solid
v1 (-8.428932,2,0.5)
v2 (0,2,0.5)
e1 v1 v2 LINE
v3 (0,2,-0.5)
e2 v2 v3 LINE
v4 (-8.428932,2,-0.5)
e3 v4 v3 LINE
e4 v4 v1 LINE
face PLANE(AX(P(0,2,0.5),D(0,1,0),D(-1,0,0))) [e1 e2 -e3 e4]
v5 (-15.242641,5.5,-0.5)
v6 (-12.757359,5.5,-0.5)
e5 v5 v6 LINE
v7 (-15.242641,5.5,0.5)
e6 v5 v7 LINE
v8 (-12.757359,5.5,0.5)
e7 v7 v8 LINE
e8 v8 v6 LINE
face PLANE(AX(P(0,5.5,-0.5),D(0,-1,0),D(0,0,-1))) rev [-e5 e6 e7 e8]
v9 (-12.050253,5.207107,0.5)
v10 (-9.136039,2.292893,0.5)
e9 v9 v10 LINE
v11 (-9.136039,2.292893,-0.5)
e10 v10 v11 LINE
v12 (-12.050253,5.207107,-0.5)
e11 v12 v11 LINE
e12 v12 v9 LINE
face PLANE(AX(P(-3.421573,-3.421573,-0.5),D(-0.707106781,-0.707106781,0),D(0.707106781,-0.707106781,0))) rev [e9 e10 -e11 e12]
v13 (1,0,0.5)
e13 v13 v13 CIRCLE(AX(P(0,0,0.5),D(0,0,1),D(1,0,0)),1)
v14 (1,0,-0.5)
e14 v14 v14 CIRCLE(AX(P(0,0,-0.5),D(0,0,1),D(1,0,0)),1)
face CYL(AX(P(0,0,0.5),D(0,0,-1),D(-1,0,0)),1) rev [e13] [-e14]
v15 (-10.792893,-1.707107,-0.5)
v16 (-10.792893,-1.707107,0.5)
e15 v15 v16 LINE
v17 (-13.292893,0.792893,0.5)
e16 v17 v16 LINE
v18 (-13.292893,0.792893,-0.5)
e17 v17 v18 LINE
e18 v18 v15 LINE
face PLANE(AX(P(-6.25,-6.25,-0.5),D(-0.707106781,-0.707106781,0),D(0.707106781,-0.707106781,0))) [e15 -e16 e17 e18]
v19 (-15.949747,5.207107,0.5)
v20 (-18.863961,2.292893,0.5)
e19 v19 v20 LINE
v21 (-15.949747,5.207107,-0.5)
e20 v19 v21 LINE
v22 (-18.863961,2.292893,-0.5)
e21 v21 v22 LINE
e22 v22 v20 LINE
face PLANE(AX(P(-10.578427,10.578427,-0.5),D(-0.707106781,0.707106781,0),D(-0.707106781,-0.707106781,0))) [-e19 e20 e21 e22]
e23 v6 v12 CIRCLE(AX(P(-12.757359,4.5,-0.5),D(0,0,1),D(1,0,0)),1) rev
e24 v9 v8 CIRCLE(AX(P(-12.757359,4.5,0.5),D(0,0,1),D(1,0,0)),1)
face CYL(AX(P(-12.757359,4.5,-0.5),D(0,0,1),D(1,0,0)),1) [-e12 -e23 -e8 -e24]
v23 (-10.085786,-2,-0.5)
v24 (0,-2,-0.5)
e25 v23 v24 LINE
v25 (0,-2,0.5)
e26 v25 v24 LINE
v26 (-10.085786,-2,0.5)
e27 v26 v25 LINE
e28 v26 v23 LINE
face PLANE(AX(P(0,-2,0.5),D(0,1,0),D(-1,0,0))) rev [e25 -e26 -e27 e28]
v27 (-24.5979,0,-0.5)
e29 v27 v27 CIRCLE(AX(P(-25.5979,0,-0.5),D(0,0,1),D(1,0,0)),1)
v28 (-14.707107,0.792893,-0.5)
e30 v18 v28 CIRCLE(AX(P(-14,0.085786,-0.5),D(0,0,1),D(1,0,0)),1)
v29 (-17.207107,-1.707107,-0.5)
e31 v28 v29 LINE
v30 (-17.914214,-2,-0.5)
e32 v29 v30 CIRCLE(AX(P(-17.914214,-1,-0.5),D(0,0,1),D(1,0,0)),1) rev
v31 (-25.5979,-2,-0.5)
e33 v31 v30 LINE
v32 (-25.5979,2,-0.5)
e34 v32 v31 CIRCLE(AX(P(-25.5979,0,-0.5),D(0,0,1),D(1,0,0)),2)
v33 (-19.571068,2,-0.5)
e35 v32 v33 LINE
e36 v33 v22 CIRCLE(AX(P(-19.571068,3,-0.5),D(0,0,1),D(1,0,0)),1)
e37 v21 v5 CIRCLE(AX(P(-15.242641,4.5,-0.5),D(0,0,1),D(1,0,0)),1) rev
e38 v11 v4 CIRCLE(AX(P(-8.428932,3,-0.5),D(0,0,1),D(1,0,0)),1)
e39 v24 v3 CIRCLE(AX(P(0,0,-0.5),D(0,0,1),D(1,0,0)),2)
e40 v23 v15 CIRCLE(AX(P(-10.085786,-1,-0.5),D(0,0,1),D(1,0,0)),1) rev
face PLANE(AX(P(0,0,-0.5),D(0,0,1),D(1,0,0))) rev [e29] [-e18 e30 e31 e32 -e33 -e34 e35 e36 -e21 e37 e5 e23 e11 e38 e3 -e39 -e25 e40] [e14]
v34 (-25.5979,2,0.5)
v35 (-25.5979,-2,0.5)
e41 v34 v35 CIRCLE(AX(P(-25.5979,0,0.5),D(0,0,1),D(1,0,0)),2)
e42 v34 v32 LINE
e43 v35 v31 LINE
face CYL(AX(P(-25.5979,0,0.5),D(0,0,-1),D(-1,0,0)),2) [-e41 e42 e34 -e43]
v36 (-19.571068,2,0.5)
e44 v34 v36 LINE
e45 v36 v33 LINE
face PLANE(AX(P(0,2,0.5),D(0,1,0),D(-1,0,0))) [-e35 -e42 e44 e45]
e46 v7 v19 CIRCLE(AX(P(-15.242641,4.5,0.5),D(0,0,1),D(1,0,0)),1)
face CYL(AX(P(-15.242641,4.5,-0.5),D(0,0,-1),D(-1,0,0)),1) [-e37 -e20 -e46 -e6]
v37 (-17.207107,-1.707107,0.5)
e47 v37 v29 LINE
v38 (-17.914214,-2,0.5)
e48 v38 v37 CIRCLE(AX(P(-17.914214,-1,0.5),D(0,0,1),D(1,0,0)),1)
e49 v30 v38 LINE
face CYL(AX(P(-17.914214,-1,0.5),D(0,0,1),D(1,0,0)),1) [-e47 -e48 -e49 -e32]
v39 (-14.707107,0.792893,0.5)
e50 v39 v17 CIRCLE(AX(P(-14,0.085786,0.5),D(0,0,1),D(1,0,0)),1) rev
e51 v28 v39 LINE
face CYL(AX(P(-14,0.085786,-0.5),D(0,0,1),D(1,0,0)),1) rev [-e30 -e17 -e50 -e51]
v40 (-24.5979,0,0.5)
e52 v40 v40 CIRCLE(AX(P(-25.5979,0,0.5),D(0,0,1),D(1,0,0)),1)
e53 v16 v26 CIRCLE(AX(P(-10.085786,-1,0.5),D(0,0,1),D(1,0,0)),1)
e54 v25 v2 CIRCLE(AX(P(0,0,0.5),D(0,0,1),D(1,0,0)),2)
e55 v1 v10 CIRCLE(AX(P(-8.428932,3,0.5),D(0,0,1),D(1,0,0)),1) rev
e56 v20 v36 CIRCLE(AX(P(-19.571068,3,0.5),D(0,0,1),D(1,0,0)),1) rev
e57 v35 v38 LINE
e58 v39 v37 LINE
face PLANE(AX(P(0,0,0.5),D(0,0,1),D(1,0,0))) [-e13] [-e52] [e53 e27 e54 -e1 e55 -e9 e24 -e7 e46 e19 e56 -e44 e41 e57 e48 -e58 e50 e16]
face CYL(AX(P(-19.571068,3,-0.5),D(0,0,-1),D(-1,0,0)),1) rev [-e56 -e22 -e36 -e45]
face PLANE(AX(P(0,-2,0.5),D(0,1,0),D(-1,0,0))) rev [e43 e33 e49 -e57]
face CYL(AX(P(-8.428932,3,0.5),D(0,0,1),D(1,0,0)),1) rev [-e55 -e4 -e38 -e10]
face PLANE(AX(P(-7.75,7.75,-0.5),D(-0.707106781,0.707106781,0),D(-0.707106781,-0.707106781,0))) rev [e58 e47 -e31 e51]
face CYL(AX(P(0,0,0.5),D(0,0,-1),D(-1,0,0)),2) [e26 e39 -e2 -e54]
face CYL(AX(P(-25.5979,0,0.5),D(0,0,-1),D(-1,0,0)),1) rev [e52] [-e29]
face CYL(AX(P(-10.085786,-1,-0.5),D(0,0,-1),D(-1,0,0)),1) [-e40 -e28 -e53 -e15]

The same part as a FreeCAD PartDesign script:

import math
import FreeCAD as App
import Part
import Sketcher


def edges_at(feature, points):
    """Names of the edges that pass closest to the given points."""
    edges = feature.Shape.Edges
    near = lambda p: min(range(len(edges)), key=lambda i: edges[i].distToShape(Part.Vertex(*p))[0])
    return sorted({f"Edge{near(p) + 1}" for p in points})


def add_polygon(sketch, points):
    """Adds a closed chain of lines whose ends are joined by coincident constraints."""
    first, n = sketch.GeometryCount, len(points)
    for a, b in zip(points, points[1:] + points[:1]):
        sketch.addGeometry(Part.LineSegment(App.Vector(*a, 0), App.Vector(*b, 0)), False)
    for i in range(n):
        sketch.addConstraint(Sketcher.Constraint("Coincident", first + i, 2, first + (i + 1) % n, 1))

doc = App.newDocument("Part")
body = doc.addObject("PartDesign::Body", "Body")

sketch1 = doc.addObject("Sketcher::SketchObject", "Sketch")
body.addObject(sketch1)
sketch1.AttachmentSupport = (doc.XY_Plane, [""])
sketch1.MapMode = "FlatFace"
sketch1.addGeometry(Part.LineSegment(App.Vector(0, 2, 0), App.Vector(-25.6, 2, 0)), False)
sketch1.addGeometry(Part.ArcOfCircle(Part.Circle(App.Vector(-25.6, 0, 0), App.Vector(0, 0, 1), 2), math.radians(90), math.radians(270)), False)
sketch1.addGeometry(Part.LineSegment(App.Vector(-25.6, -2, 0), App.Vector(0, -2, 0)), False)
sketch1.addGeometry(Part.ArcOfCircle(Part.Circle(App.Vector(0, 0, 0), App.Vector(0, 0, 1), 2), math.radians(-90), math.radians(90)), False)
sketch1.addGeometry(Part.Circle(App.Vector(-25.6, 0, 0), App.Vector(0, 0, 1), 1), False)
sketch1.addGeometry(Part.Circle(App.Vector(0, 0, 0), App.Vector(0, 0, 1), 1), False)
sketch1.addConstraint(Sketcher.Constraint("Tangent", 0, 2, 1, 1))
sketch1.addConstraint(Sketcher.Constraint("Tangent", 1, 2, 2, 1))
sketch1.addConstraint(Sketcher.Constraint("Tangent", 2, 2, 3, 1))
sketch1.addConstraint(Sketcher.Constraint("Tangent", 3, 2, 0, 1))
sketch1.addConstraint(Sketcher.Constraint("Horizontal", 0))
sketch1.addConstraint(Sketcher.Constraint("Horizontal", 2))
sketch1.addConstraint(Sketcher.Constraint("Coincident", 3, 3, -1, 1))
sketch1.addConstraint(Sketcher.Constraint("Coincident", 5, 3, -1, 1))
sketch1.addConstraint(Sketcher.Constraint("Coincident", 4, 3, 1, 3))
sketch1.addConstraint(Sketcher.Constraint("Equal", 4, 5))
sketch1.addConstraint(Sketcher.Constraint("Diameter", 4, 2.0))
sketch1.addConstraint(Sketcher.Constraint("Radius", 1, 2.0))
sketch1.addConstraint(Sketcher.Constraint("DistanceX", 0, 2, 0, 1, 25.5979))
pad1 = doc.addObject("PartDesign::Pad", "Pad")
body.addObject(pad1)
pad1.Profile = sketch1
pad1.Length = 1
pad1.Midplane = True

sketch2 = doc.addObject("Sketcher::SketchObject", "Sketch001")
body.addObject(sketch2)
sketch2.AttachmentSupport = (doc.XY_Plane, [""])
sketch2.MapMode = "FlatFace"
add_polygon(sketch2, [(-8.8, 2), (-12.3, 5.5), (-15.7, 5.5), (-19.2, 2)])
sketch2.addConstraint(Sketcher.Constraint("Horizontal", 1))
sketch2.addConstraint(Sketcher.Constraint("Horizontal", 3))
sketch2.addConstraint(Sketcher.Constraint("Perpendicular", 0, 2))
sketch2.addConstraint(Sketcher.Constraint("Equal", 0, 2))
sketch2.addConstraint(Sketcher.Constraint("DistanceY", -1, 1, 2, 2, 2.0))
sketch2.addConstraint(Sketcher.Constraint("DistanceY", -1, 1, 0, 2, 5.5))
sketch2.addConstraint(Sketcher.Constraint("DistanceX", 1, 2, 1, 1, 3.313708))
sketch2.addConstraint(Sketcher.Constraint("DistanceX", 0, 2, -1, 1, 12.343146))
pad2 = doc.addObject("PartDesign::Pad", "Pad001")
body.addObject(pad2)
pad2.Profile = sketch2
pad2.Length = 1
pad2.Midplane = True

sketch3 = doc.addObject("Sketcher::SketchObject", "Sketch002")
body.addObject(sketch3)
sketch3.AttachmentSupport = (doc.XY_Plane, [""])
sketch3.MapMode = "FlatFace"
add_polygon(sketch3, [(-10.5, -2), (-14, 1.5), (-17.5, -2)])
sketch3.addConstraint(Sketcher.Constraint("Horizontal", 2))
sketch3.addConstraint(Sketcher.Constraint("Perpendicular", 0, 1))
sketch3.addConstraint(Sketcher.Constraint("Equal", 0, 1))
sketch3.addConstraint(Sketcher.Constraint("DistanceX", 2, 1, 2, 2, 7.0))
sketch3.addConstraint(Sketcher.Constraint("DistanceX", 0, 2, -1, 1, 14.0))
sketch3.addConstraint(Sketcher.Constraint("DistanceY", 1, 2, -1, 1, 2.0))
pocket1 = doc.addObject("PartDesign::Pocket", "Pocket")
body.addObject(pocket1)
pocket1.Profile = sketch3
pocket1.Length = 1
pocket1.Midplane = True
doc.recompute()

fillet = doc.addObject("PartDesign::Fillet", "Fillet")
body.addObject(fillet)
fillet.Base = (pocket1, edges_at(pocket1, [(-8.843, 2, 0), (-19.157, 2, 0), (-14, 1.5, 0)]))
fillet.Radius = 1
doc.recompute()

fillet2 = doc.addObject("PartDesign::Fillet", "Fillet001")
body.addObject(fillet2)
fillet2.Base = (fillet, edges_at(fillet, [
    (-15.657, 5.5, 0),
    (-12.343, 5.5, 0),
    (-17.5, -2, 0),
    (-10.5, -2, 0),
]))
fillet2.Radius = 1

doc.recompute()
